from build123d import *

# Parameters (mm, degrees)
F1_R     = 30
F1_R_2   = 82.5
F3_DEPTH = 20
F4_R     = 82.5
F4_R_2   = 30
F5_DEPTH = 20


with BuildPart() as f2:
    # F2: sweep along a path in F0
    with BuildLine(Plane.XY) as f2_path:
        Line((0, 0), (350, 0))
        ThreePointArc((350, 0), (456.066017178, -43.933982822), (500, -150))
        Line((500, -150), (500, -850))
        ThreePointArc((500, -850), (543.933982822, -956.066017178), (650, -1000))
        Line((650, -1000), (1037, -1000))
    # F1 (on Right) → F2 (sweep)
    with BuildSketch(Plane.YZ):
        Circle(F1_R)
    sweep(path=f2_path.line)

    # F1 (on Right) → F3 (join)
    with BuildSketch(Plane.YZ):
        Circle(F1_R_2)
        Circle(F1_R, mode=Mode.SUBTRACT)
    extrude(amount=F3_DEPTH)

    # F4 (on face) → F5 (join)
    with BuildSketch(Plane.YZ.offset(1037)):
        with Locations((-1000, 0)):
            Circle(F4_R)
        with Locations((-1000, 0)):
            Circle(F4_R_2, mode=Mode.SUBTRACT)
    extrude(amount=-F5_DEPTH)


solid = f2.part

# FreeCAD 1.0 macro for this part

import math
import FreeCAD as App
import Part
import Sketcher
from FreeCAD import Vector

doc = App.newDocument("Part")
body = doc.addObject("PartDesign::Body", "Body")

# Sketch on YZ plane
sketch1 = body.newObject("Sketcher::SketchObject", "Sketch")
sketch1.AttachmentSupport = (doc.getObject("YZ_Plane"), [""])
sketch1.MapMode = "FlatFace"
sketch1.addGeometry(Part.Circle(Vector(0, 0, 0), Vector(0, 0, 1), 30), False)
sketch1.addConstraint([
    Sketcher.Constraint("Coincident", 0, 3, -1, 1),
    Sketcher.Constraint("Diameter", 0, 60.0),
])

# Sketch on XY plane
sketch2 = body.newObject("Sketcher::SketchObject", "Sketch001")
sketch2.AttachmentSupport = (doc.getObject("XY_Plane"), [""])
sketch2.MapMode = "FlatFace"
sketch2.addGeometry([
    Part.LineSegment(Vector(0, 0, 0), Vector(350, 0, 0)),  # 0
    Part.ArcOfCircle(Part.Circle(Vector(350, -150, 0), Vector(0, 0, 1), 150), math.radians(0), math.radians(90)),  # 1
    Part.LineSegment(Vector(500, -150, 0), Vector(500, -850, 0)),  # 2
    Part.ArcOfCircle(Part.Circle(Vector(650, -850, 0), Vector(0, 0, 1), 150), math.radians(180), math.radians(270)),  # 3
    Part.LineSegment(Vector(650, -1000, 0), Vector(1037, -1000, 0)),  # 4
], False)
sketch2.addConstraint([
    Sketcher.Constraint("Tangent", 0, 2, 1, 2),
    Sketcher.Constraint("Tangent", 1, 1, 2, 1),
    Sketcher.Constraint("Tangent", 2, 2, 3, 1),
    Sketcher.Constraint("Tangent", 3, 2, 4, 1),
    Sketcher.Constraint("Horizontal", 0),
    Sketcher.Constraint("Vertical", 2),
    Sketcher.Constraint("Horizontal", 4),
    Sketcher.Constraint("Coincident", 0, 1, -1, 1),
    Sketcher.Constraint("Equal", 1, 3),
    Sketcher.Constraint("Radius", 1, 150.0),
    Sketcher.Constraint("DistanceX", 0, 1, 0, 2, 350.0),
    Sketcher.Constraint("DistanceX", 4, 1, 4, 2, 387.0),
    Sketcher.Constraint("DistanceY", 2, 2, 2, 1, 700.0),
])
doc.recompute()

additivepipe = body.newObject("PartDesign::AdditivePipe", "AdditivePipe")
additivepipe.Profile = sketch1
additivepipe.Spine = (sketch2, ["Edge1", "Edge2", "Edge3", "Edge4", "Edge5"])

# Sketch on YZ plane
sketch3 = body.newObject("Sketcher::SketchObject", "Sketch002")
sketch3.AttachmentSupport = (doc.getObject("YZ_Plane"), [""])
sketch3.MapMode = "FlatFace"
sketch3.addGeometry([
    Part.Circle(Vector(0, 0, 0), Vector(0, 0, 1), 82),
    Part.Circle(Vector(0, 0, 0), Vector(0, 0, 1), 30),
], False)
sketch3.addConstraint([
    Sketcher.Constraint("Coincident", 0, 3, -1, 1),
    Sketcher.Constraint("Coincident", 1, 3, -1, 1),
    Sketcher.Constraint("Diameter", 0, 165.0),
    Sketcher.Constraint("Diameter", 1, 60.0),
])
pad1 = body.newObject("PartDesign::Pad", "Pad")
pad1.Profile = sketch3
pad1.Length = 20

# Sketch on YZ plane
sketch4 = body.newObject("Sketcher::SketchObject", "Sketch003")
sketch4.AttachmentSupport = (doc.getObject("YZ_Plane"), [""])
sketch4.MapMode = "FlatFace"
sketch4.AttachmentOffset = App.Placement(Vector(0, 0, 1037), App.Rotation())
sketch4.addGeometry([
    Part.Circle(Vector(-1000, 0, 0), Vector(0, 0, 1), 82),
    Part.Circle(Vector(-1000, 0, 0), Vector(0, 0, 1), 30),
], False)
sketch4.addConstraint([
    Sketcher.Constraint("Coincident", 1, 3, 0, 3),
    Sketcher.Constraint("PointOnObject", 0, 3, -1),
    Sketcher.Constraint("Diameter", 0, 165.0),
    Sketcher.Constraint("Diameter", 1, 60.0),
    Sketcher.Constraint("DistanceX", 0, 3, -1, 1, 1000.0),
])
pad2 = body.newObject("PartDesign::Pad", "Pad001")
pad2.Profile = sketch4
pad2.Length = 20
pad2.Reversed = True

doc.recompute()
